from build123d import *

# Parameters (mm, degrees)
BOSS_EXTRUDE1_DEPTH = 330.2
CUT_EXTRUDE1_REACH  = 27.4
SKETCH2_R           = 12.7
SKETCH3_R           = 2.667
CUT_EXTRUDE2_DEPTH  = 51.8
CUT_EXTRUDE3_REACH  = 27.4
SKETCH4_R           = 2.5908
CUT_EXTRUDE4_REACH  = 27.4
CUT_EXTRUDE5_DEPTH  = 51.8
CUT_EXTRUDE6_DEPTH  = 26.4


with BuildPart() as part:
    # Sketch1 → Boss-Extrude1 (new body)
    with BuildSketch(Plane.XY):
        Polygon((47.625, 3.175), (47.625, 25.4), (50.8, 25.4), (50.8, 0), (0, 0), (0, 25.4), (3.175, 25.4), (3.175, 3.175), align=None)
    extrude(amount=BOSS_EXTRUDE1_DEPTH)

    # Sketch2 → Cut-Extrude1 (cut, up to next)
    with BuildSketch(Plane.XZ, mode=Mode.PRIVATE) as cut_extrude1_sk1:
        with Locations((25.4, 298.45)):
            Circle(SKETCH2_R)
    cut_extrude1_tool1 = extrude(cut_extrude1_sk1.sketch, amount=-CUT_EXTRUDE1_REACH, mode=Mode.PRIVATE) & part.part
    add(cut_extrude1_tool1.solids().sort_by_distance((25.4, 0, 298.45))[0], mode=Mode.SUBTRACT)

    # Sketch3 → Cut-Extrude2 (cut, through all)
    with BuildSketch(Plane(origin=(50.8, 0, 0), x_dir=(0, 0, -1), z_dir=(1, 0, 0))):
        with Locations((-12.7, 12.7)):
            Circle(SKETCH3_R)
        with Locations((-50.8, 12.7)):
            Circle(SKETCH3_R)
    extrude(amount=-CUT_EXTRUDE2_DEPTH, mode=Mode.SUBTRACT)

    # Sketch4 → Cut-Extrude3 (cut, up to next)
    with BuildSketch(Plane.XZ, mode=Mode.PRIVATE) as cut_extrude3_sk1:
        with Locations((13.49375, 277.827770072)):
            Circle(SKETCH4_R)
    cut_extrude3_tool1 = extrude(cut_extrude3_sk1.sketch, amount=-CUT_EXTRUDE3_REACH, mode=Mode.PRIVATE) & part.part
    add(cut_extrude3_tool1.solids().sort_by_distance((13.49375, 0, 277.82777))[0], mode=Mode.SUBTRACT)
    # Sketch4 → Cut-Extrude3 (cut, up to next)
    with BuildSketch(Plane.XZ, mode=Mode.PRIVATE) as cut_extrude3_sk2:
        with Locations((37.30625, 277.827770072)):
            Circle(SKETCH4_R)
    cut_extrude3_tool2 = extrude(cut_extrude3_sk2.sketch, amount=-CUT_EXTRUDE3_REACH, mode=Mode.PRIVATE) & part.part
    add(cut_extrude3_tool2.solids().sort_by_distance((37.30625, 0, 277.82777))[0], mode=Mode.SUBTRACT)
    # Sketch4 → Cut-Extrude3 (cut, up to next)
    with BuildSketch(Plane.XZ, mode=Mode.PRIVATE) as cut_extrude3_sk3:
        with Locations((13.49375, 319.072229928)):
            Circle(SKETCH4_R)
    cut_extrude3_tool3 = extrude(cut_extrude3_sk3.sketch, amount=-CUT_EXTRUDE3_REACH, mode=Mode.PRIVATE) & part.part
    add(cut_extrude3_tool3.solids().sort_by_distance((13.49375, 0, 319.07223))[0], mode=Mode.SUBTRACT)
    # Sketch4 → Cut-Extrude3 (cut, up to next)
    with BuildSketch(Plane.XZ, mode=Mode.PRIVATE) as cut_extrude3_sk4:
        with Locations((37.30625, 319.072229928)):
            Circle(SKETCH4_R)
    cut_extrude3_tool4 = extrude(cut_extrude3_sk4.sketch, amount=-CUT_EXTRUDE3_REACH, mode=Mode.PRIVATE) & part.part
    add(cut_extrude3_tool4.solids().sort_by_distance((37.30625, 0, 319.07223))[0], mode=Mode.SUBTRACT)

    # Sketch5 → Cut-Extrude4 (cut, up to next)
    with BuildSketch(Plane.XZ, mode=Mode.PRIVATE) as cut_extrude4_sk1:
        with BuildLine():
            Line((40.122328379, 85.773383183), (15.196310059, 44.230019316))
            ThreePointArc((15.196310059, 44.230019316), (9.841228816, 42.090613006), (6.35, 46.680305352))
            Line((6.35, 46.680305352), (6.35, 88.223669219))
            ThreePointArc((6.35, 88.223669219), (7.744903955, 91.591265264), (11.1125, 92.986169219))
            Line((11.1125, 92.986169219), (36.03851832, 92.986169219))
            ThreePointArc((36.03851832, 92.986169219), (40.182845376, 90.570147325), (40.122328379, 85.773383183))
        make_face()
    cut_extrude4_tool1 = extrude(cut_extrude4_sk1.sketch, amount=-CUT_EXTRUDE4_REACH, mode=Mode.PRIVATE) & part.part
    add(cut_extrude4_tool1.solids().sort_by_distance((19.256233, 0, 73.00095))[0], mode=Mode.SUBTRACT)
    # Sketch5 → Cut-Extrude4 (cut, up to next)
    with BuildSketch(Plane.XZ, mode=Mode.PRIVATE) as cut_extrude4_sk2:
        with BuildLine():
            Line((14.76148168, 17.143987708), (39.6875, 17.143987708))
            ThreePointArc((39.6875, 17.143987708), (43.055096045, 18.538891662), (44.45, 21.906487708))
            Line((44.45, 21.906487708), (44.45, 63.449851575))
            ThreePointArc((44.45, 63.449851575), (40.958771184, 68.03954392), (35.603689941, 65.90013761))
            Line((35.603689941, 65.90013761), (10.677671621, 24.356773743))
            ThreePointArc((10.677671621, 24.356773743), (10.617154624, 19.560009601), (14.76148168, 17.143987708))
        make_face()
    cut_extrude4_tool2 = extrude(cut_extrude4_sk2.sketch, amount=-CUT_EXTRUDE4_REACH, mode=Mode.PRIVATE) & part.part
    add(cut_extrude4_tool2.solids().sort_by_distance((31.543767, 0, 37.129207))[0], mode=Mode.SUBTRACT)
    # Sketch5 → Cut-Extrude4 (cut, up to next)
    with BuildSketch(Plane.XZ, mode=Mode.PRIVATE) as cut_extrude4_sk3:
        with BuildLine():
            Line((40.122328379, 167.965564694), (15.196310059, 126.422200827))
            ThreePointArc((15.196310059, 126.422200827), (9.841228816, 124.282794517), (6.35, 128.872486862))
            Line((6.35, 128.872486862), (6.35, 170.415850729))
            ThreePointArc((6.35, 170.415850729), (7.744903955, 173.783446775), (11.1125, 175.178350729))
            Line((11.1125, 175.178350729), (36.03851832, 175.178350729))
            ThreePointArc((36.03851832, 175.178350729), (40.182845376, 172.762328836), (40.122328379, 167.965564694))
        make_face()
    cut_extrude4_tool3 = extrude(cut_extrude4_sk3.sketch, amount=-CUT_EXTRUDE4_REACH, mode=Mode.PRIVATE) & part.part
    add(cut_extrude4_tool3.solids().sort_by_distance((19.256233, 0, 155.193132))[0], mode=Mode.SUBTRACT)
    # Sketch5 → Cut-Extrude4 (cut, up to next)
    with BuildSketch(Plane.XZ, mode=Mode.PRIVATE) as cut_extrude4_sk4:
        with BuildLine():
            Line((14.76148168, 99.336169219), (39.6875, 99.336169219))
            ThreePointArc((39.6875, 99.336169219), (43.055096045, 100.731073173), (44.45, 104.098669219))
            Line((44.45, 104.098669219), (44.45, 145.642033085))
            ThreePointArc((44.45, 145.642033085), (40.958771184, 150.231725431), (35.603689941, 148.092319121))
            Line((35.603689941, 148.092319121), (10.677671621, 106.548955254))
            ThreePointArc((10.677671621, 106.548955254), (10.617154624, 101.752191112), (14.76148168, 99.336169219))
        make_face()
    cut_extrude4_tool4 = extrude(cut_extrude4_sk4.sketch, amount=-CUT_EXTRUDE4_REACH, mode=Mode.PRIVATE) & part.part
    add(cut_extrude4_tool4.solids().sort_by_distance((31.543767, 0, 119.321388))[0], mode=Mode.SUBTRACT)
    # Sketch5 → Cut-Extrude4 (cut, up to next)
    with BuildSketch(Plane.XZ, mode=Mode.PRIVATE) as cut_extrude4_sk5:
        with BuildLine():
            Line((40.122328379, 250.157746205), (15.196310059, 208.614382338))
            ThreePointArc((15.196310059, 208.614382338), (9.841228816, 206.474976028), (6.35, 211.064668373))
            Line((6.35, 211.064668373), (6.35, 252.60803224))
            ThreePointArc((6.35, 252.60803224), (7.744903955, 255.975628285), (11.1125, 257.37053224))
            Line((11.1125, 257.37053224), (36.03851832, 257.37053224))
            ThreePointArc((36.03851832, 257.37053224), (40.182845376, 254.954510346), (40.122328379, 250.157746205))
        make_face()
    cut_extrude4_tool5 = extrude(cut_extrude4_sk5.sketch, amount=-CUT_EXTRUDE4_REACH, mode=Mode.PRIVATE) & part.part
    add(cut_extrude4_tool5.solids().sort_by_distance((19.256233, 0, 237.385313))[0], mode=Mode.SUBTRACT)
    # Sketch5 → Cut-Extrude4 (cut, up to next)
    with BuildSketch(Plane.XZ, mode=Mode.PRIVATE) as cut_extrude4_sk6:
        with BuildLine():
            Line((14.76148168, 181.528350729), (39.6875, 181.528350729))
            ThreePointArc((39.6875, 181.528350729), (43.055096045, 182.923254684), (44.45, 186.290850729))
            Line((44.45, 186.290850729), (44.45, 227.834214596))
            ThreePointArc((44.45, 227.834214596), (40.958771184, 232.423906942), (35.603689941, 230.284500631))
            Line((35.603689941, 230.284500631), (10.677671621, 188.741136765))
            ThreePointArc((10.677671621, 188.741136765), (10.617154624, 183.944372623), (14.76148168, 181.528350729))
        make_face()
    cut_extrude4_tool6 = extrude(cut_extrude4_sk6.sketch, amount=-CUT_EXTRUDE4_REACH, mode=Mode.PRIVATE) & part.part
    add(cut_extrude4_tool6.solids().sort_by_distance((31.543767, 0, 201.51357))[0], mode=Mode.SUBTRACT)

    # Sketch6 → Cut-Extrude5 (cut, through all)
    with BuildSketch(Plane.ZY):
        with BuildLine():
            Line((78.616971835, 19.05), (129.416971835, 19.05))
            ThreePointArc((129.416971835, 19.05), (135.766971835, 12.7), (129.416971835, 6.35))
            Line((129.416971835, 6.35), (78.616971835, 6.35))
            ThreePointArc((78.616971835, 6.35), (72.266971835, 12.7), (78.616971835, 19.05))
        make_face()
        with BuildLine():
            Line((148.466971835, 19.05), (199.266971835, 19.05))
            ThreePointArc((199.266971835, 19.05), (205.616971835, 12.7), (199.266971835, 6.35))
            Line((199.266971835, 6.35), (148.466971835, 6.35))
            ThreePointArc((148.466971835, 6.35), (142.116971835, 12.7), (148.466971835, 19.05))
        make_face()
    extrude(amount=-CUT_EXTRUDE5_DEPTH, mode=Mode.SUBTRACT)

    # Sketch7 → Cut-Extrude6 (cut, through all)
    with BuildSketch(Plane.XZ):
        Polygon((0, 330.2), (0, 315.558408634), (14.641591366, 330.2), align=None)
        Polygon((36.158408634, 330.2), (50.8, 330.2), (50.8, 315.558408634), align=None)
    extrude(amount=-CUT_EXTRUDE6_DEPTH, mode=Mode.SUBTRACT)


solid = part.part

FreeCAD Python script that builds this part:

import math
import FreeCAD as App
import Part
import Sketcher
from FreeCAD import Vector
Q = App.Units.Quantity


def add_polygon(sketch, points):
    """Adds a closed chain of lines whose ends are joined by coincident constraints."""
    first, n = sketch.GeometryCount, len(points)
    for a, b in zip(points, points[1:] + points[:1]):
        sketch.addGeometry(Part.LineSegment(App.Vector(*a, 0), App.Vector(*b, 0)), False)
    for i in range(n):
        sketch.addConstraint(Sketcher.Constraint("Coincident", first + i, 2, first + (i + 1) % n, 1))

doc = App.newDocument("Part")
body = doc.addObject("PartDesign::Body", "Body")

# Sketch on XY plane
sketch1 = body.newObject("Sketcher::SketchObject", "Sketch")
sketch1.AttachmentSupport = (doc.getObject("XY_Plane"), [""])
sketch1.MapMode = "FlatFace"
add_polygon(sketch1, [(47.6, 25.4), (47.6, 3.2), (3.2, 3.2), (3.2, 25.4), (0, 25.4), (0, 0), (50.8, 0), (50.8, 25.4)])  # lines 0-7
sketch1.addConstraint(Sketcher.Constraint("Vertical", 0))
sketch1.addConstraint(Sketcher.Constraint("Horizontal", 1))
sketch1.addConstraint(Sketcher.Constraint("Vertical", 2))
sketch1.addConstraint(Sketcher.Constraint("Horizontal", 3))
sketch1.addConstraint(Sketcher.Constraint("Vertical", 4))
sketch1.addConstraint(Sketcher.Constraint("Horizontal", 5))
sketch1.addConstraint(Sketcher.Constraint("Vertical", 6))
sketch1.addConstraint(Sketcher.Constraint("Horizontal", 7))
sketch1.addConstraint(Sketcher.Constraint("Coincident", 4, 2, -1, 1))
sketch1.addConstraint(Sketcher.Constraint("Horizontal", 3, 2, 6, 2))
sketch1.addConstraint(Sketcher.Constraint("Equal", 3, 7))
sketch1.addConstraint(Sketcher.Constraint("DistanceX", 5, 1, 5, 2, Q("2 in")))
sketch1.addConstraint(Sketcher.Constraint("DistanceY", 4, 2, 4, 1, Q("1 in")))
sketch1.addConstraint(Sketcher.Constraint("DistanceX", 1, 2, 1, 1, Q("1.75 in")))
sketch1.addConstraint(Sketcher.Constraint("DistanceY", 0, 2, 0, 1, Q("0.875 in")))
pad1 = body.newObject("PartDesign::Pad", "Pad")
pad1.Profile = sketch1
pad1.Length = Q("13 in")

# Sketch on XZ plane
sketch2 = body.newObject("Sketcher::SketchObject", "Sketch001")
sketch2.AttachmentSupport = (doc.getObject("XZ_Plane"), [""])
sketch2.MapMode = "FlatFace"
sketch2.addGeometry(Part.Circle(Vector(25, 298, 0), Vector(0, 0, 1), 13), False)
sketch2.addConstraint(Sketcher.Constraint("Diameter", 0, Q("1 in")))
sketch2.addConstraint(Sketcher.Constraint("DistanceX", -1, 1, 0, 3, Q("1 in")))
sketch2.addConstraint(Sketcher.Constraint("DistanceY", -1, 1, 0, 3, Q("11.75 in")))
pocket1 = body.newObject("PartDesign::Pocket", "Pocket")
pocket1.Profile = sketch2
pocket1.Type = "UpToFirst"

# Sketch on YZ plane
sketch3 = body.newObject("Sketcher::SketchObject", "Sketch002")
sketch3.AttachmentSupport = (doc.getObject("YZ_Plane"), [""])
sketch3.MapMode = "FlatFace"
sketch3.AttachmentOffset = App.Placement(Vector(0, 0, 2 * 25.4), App.Rotation())
sketch3.addGeometry(Part.Circle(Vector(12.7, 12.7, 0), Vector(0, 0, 1), 2.7), False)
sketch3.addGeometry(Part.Circle(Vector(12.7, 50.8, 0), Vector(0, 0, 1), 2.7), False)
sketch3.addConstraint(Sketcher.Constraint("Equal", 0, 1))
sketch3.addConstraint(Sketcher.Constraint("Vertical", 0, 3, 1, 3))
sketch3.addConstraint(Sketcher.Constraint("Diameter", 0, Q("0.21 in")))
sketch3.addConstraint(Sketcher.Constraint("DistanceY", -1, 1, 1, 3, Q("2 in")))
sketch3.addConstraint(Sketcher.Constraint("DistanceX", -1, 1, 0, 3, Q("0.5 in")))
sketch3.addConstraint(Sketcher.Constraint("DistanceY", -1, 1, 0, 3, Q("0.5 in")))
pocket2 = body.newObject("PartDesign::Pocket", "Pocket001")
pocket2.Profile = sketch3
pocket2.Type = "ThroughAll"

# Sketch on XZ plane
sketch4 = body.newObject("Sketcher::SketchObject", "Sketch003")
sketch4.AttachmentSupport = (doc.getObject("XZ_Plane"), [""])
sketch4.MapMode = "FlatFace"
sketch4.addGeometry(Part.Circle(Vector(13.5, 277.8, 0), Vector(0, 0, 1), 2.6), False)
sketch4.addConstraint(Sketcher.Constraint("Diameter", 0, Q("0.204 in")))
sketch4.addConstraint(Sketcher.Constraint("DistanceX", -1, 1, 0, 3, Q("0.53125 in")))
sketch4.addConstraint(Sketcher.Constraint("DistanceY", -1, 1, 0, 3, Q("277.82777 mm")))
pocket3 = body.newObject("PartDesign::Pocket", "Pocket002")
pocket3.Profile = sketch4
pocket3.Type = "UpToFirst"

# Sketch on XZ plane
sketch5 = body.newObject("Sketcher::SketchObject", "Sketch004")
sketch5.AttachmentSupport = (doc.getObject("XZ_Plane"), [""])
sketch5.MapMode = "FlatFace"
sketch5.addGeometry(Part.Circle(Vector(37.3, 277.8, 0), Vector(0, 0, 1), 2.6), False)
sketch5.addConstraint(Sketcher.Constraint("Diameter", 0, Q("0.204 in")))
sketch5.addConstraint(Sketcher.Constraint("DistanceX", -1, 1, 0, 3, Q("1.46875 in")))
sketch5.addConstraint(Sketcher.Constraint("DistanceY", -1, 1, 0, 3, Q("277.82777 mm")))
pocket4 = body.newObject("PartDesign::Pocket", "Pocket003")
pocket4.Profile = sketch5
pocket4.Type = "UpToFirst"

# Sketch on XZ plane
sketch6 = body.newObject("Sketcher::SketchObject", "Sketch005")
sketch6.AttachmentSupport = (doc.getObject("XZ_Plane"), [""])
sketch6.MapMode = "FlatFace"
sketch6.addGeometry(Part.Circle(Vector(13.5, 319.1, 0), Vector(0, 0, 1), 2.6), False)
sketch6.addConstraint(Sketcher.Constraint("Diameter", 0, Q("0.204 in")))
sketch6.addConstraint(Sketcher.Constraint("DistanceX", -1, 1, 0, 3, Q("0.53125 in")))
sketch6.addConstraint(Sketcher.Constraint("DistanceY", -1, 1, 0, 3, Q("319.07223 mm")))
pocket5 = body.newObject("PartDesign::Pocket", "Pocket004")
pocket5.Profile = sketch6
pocket5.Type = "UpToFirst"

# Sketch on XZ plane
sketch7 = body.newObject("Sketcher::SketchObject", "Sketch006")
sketch7.AttachmentSupport = (doc.getObject("XZ_Plane"), [""])
sketch7.MapMode = "FlatFace"
sketch7.addGeometry(Part.Circle(Vector(37.3, 319.1, 0), Vector(0, 0, 1), 2.6), False)
sketch7.addConstraint(Sketcher.Constraint("Diameter", 0, Q("0.204 in")))
sketch7.addConstraint(Sketcher.Constraint("DistanceX", -1, 1, 0, 3, Q("1.46875 in")))
sketch7.addConstraint(Sketcher.Constraint("DistanceY", -1, 1, 0, 3, Q("319.07223 mm")))
pocket6 = body.newObject("PartDesign::Pocket", "Pocket005")
pocket6.Profile = sketch7
pocket6.Type = "UpToFirst"

# Sketch on XZ plane
sketch8 = body.newObject("Sketcher::SketchObject", "Sketch007")
sketch8.AttachmentSupport = (doc.getObject("XZ_Plane"), [""])
sketch8.MapMode = "FlatFace"
sketch8.addGeometry(Part.LineSegment(Vector(15.2, 44.2, 0), Vector(40.1, 85.8, 0)), False)
sketch8.addGeometry(Part.ArcOfCircle(Part.Circle(Vector(36, 88.2, 0), Vector(0, 0, 1), 4.8), math.radians(-31), math.radians(90)), False)
sketch8.addGeometry(Part.LineSegment(Vector(36, 93, 0), Vector(11.1, 93, 0)), False)
sketch8.addGeometry(Part.ArcOfCircle(Part.Circle(Vector(11.1, 88.2, 0), Vector(0, 0, 1), 4.8), math.radians(90), math.radians(180)), False)
sketch8.addGeometry(Part.LineSegment(Vector(6.3, 88.2, 0), Vector(6.3, 46.7, 0)), False)
sketch8.addGeometry(Part.ArcOfCircle(Part.Circle(Vector(11.1, 46.7, 0), Vector(0, 0, 1), 4.8), math.radians(180), math.radians(329)), False)
sketch8.addConstraint(Sketcher.Constraint("Tangent", 0, 2, 1, 1))
sketch8.addConstraint(Sketcher.Constraint("Tangent", 1, 2, 2, 1))
sketch8.addConstraint(Sketcher.Constraint("Tangent", 2, 2, 3, 1))
sketch8.addConstraint(Sketcher.Constraint("Tangent", 3, 2, 4, 1))
sketch8.addConstraint(Sketcher.Constraint("Tangent", 4, 2, 5, 1))
sketch8.addConstraint(Sketcher.Constraint("Tangent", 5, 2, 0, 1))
sketch8.addConstraint(Sketcher.Constraint("Horizontal", 2))
sketch8.addConstraint(Sketcher.Constraint("Vertical", 4))
sketch8.addConstraint(Sketcher.Constraint("Equal", 1, 3))
sketch8.addConstraint(Sketcher.Constraint("Equal", 3, 5))
sketch8.addConstraint(Sketcher.Constraint("Radius", 1, Q("0.1875 in")))
sketch8.addConstraint(Sketcher.Constraint("DistanceX", -1, 1, 3, 2, Q("0.25 in")))
sketch8.addConstraint(Sketcher.Constraint("DistanceX", 2, 2, 2, 1, Q("24.926018 mm")))
sketch8.addConstraint(Sketcher.Constraint("Distance", 0, Q("48.447471 mm")))
sketch8.addConstraint(Sketcher.Constraint("DistanceY", -1, 1, 1, 3, Q("88.223669 mm")))
pocket7 = body.newObject("PartDesign::Pocket", "Pocket006")
pocket7.Profile = sketch8
pocket7.Type = "UpToFirst"

# Sketch on XZ plane
sketch9 = body.newObject("Sketcher::SketchObject", "Sketch008")
sketch9.AttachmentSupport = (doc.getObject("XZ_Plane"), [""])
sketch9.MapMode = "FlatFace"
sketch9.addGeometry(Part.LineSegment(Vector(14.8, 17.1, 0), Vector(39.7, 17.1, 0)), False)
sketch9.addGeometry(Part.ArcOfCircle(Part.Circle(Vector(39.7, 21.9, 0), Vector(0, 0, 1), 4.8), math.radians(-90), math.radians(0)), False)
sketch9.addGeometry(Part.LineSegment(Vector(44.5, 21.9, 0), Vector(44.5, 63.4, 0)), False)
sketch9.addGeometry(Part.ArcOfCircle(Part.Circle(Vector(39.7, 63.4, 0), Vector(0, 0, 1), 4.8), math.radians(0), math.radians(149)), False)
sketch9.addGeometry(Part.LineSegment(Vector(35.6, 65.9, 0), Vector(10.7, 24.4, 0)), False)
sketch9.addGeometry(Part.ArcOfCircle(Part.Circle(Vector(14.8, 21.9, 0), Vector(0, 0, 1), 4.8), math.radians(149), math.radians(270)), False)
sketch9.addConstraint(Sketcher.Constraint("Tangent", 0, 2, 1, 1))
sketch9.addConstraint(Sketcher.Constraint("Tangent", 1, 2, 2, 1))
sketch9.addConstraint(Sketcher.Constraint("Tangent", 2, 2, 3, 1))
sketch9.addConstraint(Sketcher.Constraint("Tangent", 3, 2, 4, 1))
sketch9.addConstraint(Sketcher.Constraint("Tangent", 4, 2, 5, 1))
sketch9.addConstraint(Sketcher.Constraint("Tangent", 5, 2, 0, 1))
sketch9.addConstraint(Sketcher.Constraint("Horizontal", 0))
sketch9.addConstraint(Sketcher.Constraint("Vertical", 2))
sketch9.addConstraint(Sketcher.Constraint("Equal", 1, 3))
sketch9.addConstraint(Sketcher.Constraint("Equal", 3, 5))
sketch9.addConstraint(Sketcher.Constraint("Radius", 1, Q("0.1875 in")))
sketch9.addConstraint(Sketcher.Constraint("DistanceX", -1, 1, 1, 2, Q("1.75 in")))
sketch9.addConstraint(Sketcher.Constraint("DistanceX", 0, 1, 0, 2, Q("24.926018 mm")))
sketch9.addConstraint(Sketcher.Constraint("Distance", 4, Q("48.447471 mm")))
sketch9.addConstraint(Sketcher.Constraint("DistanceY", -1, 1, 3, 3, Q("63.449852 mm")))
pocket8 = body.newObject("PartDesign::Pocket", "Pocket007")
pocket8.Profile = sketch9
pocket8.Type = "UpToFirst"

# Sketch on XZ plane
sketch10 = body.newObject("Sketcher::SketchObject", "Sketch009")
sketch10.AttachmentSupport = (doc.getObject("XZ_Plane"), [""])
sketch10.MapMode = "FlatFace"
sketch10.addGeometry(Part.LineSegment(Vector(15.2, 126.4, 0), Vector(40.1, 168, 0)), False)
sketch10.addGeometry(Part.ArcOfCircle(Part.Circle(Vector(36, 170.4, 0), Vector(0, 0, 1), 4.8), math.radians(-31), math.radians(90)), False)
sketch10.addGeometry(Part.LineSegment(Vector(36, 175.2, 0), Vector(11.1, 175.2, 0)), False)
sketch10.addGeometry(Part.ArcOfCircle(Part.Circle(Vector(11.1, 170.4, 0), Vector(0, 0, 1), 4.8), math.radians(90), math.radians(180)), False)
sketch10.addGeometry(Part.LineSegment(Vector(6.3, 170.4, 0), Vector(6.3, 128.9, 0)), False)
sketch10.addGeometry(Part.ArcOfCircle(Part.Circle(Vector(11.1, 128.9, 0), Vector(0, 0, 1), 4.8), math.radians(-180), math.radians(-31)), False)
sketch10.addConstraint(Sketcher.Constraint("Tangent", 0, 2, 1, 1))
sketch10.addConstraint(Sketcher.Constraint("Tangent", 1, 2, 2, 1))
sketch10.addConstraint(Sketcher.Constraint("Tangent", 2, 2, 3, 1))
sketch10.addConstraint(Sketcher.Constraint("Tangent", 3, 2, 4, 1))
sketch10.addConstraint(Sketcher.Constraint("Tangent", 4, 2, 5, 1))
sketch10.addConstraint(Sketcher.Constraint("Tangent", 5, 2, 0, 1))
sketch10.addConstraint(Sketcher.Constraint("Horizontal", 2))
sketch10.addConstraint(Sketcher.Constraint("Vertical", 4))
sketch10.addConstraint(Sketcher.Constraint("Equal", 1, 3))
sketch10.addConstraint(Sketcher.Constraint("Equal", 3, 5))
sketch10.addConstraint(Sketcher.Constraint("Radius", 1, Q("0.1875 in")))
sketch10.addConstraint(Sketcher.Constraint("DistanceX", -1, 1, 3, 2, Q("0.25 in")))
sketch10.addConstraint(Sketcher.Constraint("DistanceX", 2, 2, 2, 1, Q("24.926018 mm")))
sketch10.addConstraint(Sketcher.Constraint("DistanceY", -1, 1, 5, 2, Q("126.422201 mm")))
sketch10.addConstraint(Sketcher.Constraint("Distance", 0, Q("48.447471 mm")))
pocket9 = body.newObject("PartDesign::Pocket", "Pocket008")
pocket9.Profile = sketch10
pocket9.Type = "UpToFirst"

# Sketch on XZ plane
sketch11 = body.newObject("Sketcher::SketchObject", "Sketch010")
sketch11.AttachmentSupport = (doc.getObject("XZ_Plane"), [""])
sketch11.MapMode = "FlatFace"
sketch11.addGeometry(Part.LineSegment(Vector(14.8, 99.3, 0), Vector(39.7, 99.3, 0)), False)
sketch11.addGeometry(Part.ArcOfCircle(Part.Circle(Vector(39.7, 104.1, 0), Vector(0, 0, 1), 4.8), math.radians(-90), math.radians(0)), False)
sketch11.addGeometry(Part.LineSegment(Vector(44.5, 104.1, 0), Vector(44.5, 145.6, 0)), False)
sketch11.addGeometry(Part.ArcOfCircle(Part.Circle(Vector(39.7, 145.6, 0), Vector(0, 0, 1), 4.8), math.radians(0), math.radians(149)), False)
sketch11.addGeometry(Part.LineSegment(Vector(35.6, 148.1, 0), Vector(10.7, 106.5, 0)), False)
sketch11.addGeometry(Part.ArcOfCircle(Part.Circle(Vector(14.8, 104.1, 0), Vector(0, 0, 1), 4.8), math.radians(149), math.radians(270)), False)
sketch11.addConstraint(Sketcher.Constraint("Tangent", 0, 2, 1, 1))
sketch11.addConstraint(Sketcher.Constraint("Tangent", 1, 2, 2, 1))
sketch11.addConstraint(Sketcher.Constraint("Tangent", 2, 2, 3, 1))
sketch11.addConstraint(Sketcher.Constraint("Tangent", 3, 2, 4, 1))
sketch11.addConstraint(Sketcher.Constraint("Tangent", 4, 2, 5, 1))
sketch11.addConstraint(Sketcher.Constraint("Tangent", 5, 2, 0, 1))
sketch11.addConstraint(Sketcher.Constraint("Horizontal", 0))
sketch11.addConstraint(Sketcher.Constraint("Vertical", 2))
sketch11.addConstraint(Sketcher.Constraint("Equal", 1, 3))
sketch11.addConstraint(Sketcher.Constraint("Equal", 3, 5))
sketch11.addConstraint(Sketcher.Constraint("Radius", 1, Q("0.1875 in")))
sketch11.addConstraint(Sketcher.Constraint("DistanceX", -1, 1, 1, 2, Q("1.75 in")))
sketch11.addConstraint(Sketcher.Constraint("DistanceX", 0, 1, 0, 2, Q("24.926018 mm")))
sketch11.addConstraint(Sketcher.Constraint("Distance", 4, Q("48.447471 mm")))
sketch11.addConstraint(Sketcher.Constraint("DistanceY", -1, 1, 1, 3, Q("104.098669 mm")))
pocket10 = body.newObject("PartDesign::Pocket", "Pocket009")
pocket10.Profile = sketch11
pocket10.Type = "UpToFirst"

# Sketch on XZ plane
sketch12 = body.newObject("Sketcher::SketchObject", "Sketch011")
sketch12.AttachmentSupport = (doc.getObject("XZ_Plane"), [""])
sketch12.MapMode = "FlatFace"
sketch12.addGeometry(Part.LineSegment(Vector(15.2, 208.6, 0), Vector(40.1, 250.2, 0)), False)
sketch12.addGeometry(Part.ArcOfCircle(Part.Circle(Vector(36, 252.6, 0), Vector(0, 0, 1), 4.8), math.radians(-31), math.radians(90)), False)
sketch12.addGeometry(Part.LineSegment(Vector(36, 257.4, 0), Vector(11.1, 257.4, 0)), False)
sketch12.addGeometry(Part.ArcOfCircle(Part.Circle(Vector(11.1, 252.6, 0), Vector(0, 0, 1), 4.8), math.radians(90), math.radians(180)), False)
sketch12.addGeometry(Part.LineSegment(Vector(6.3, 252.6, 0), Vector(6.3, 211.1, 0)), False)
sketch12.addGeometry(Part.ArcOfCircle(Part.Circle(Vector(11.1, 211.1, 0), Vector(0, 0, 1), 4.8), math.radians(-180), math.radians(-31)), False)
sketch12.addConstraint(Sketcher.Constraint("Tangent", 0, 2, 1, 1))
sketch12.addConstraint(Sketcher.Constraint("Tangent", 1, 2, 2, 1))
sketch12.addConstraint(Sketcher.Constraint("Tangent", 2, 2, 3, 1))
sketch12.addConstraint(Sketcher.Constraint("Tangent", 3, 2, 4, 1))
sketch12.addConstraint(Sketcher.Constraint("Tangent", 4, 2, 5, 1))
sketch12.addConstraint(Sketcher.Constraint("Tangent", 5, 2, 0, 1))
sketch12.addConstraint(Sketcher.Constraint("Horizontal", 2))
sketch12.addConstraint(Sketcher.Constraint("Vertical", 4))
sketch12.addConstraint(Sketcher.Constraint("Equal", 1, 3))
sketch12.addConstraint(Sketcher.Constraint("Equal", 3, 5))
sketch12.addConstraint(Sketcher.Constraint("Radius", 1, Q("0.1875 in")))
sketch12.addConstraint(Sketcher.Constraint("DistanceX", -1, 1, 3, 2, Q("0.25 in")))
sketch12.addConstraint(Sketcher.Constraint("DistanceX", 2, 2, 2, 1, Q("24.926018 mm")))
sketch12.addConstraint(Sketcher.Constraint("Distance", 0, Q("48.447471 mm")))
sketch12.addConstraint(Sketcher.Constraint("DistanceY", -1, 1, 5, 3, Q("211.064668 mm")))
pocket11 = body.newObject("PartDesign::Pocket", "Pocket010")
pocket11.Profile = sketch12
pocket11.Type = "UpToFirst"

# Sketch on XZ plane
sketch13 = body.newObject("Sketcher::SketchObject", "Sketch012")
sketch13.AttachmentSupport = (doc.getObject("XZ_Plane"), [""])
sketch13.MapMode = "FlatFace"
sketch13.addGeometry(Part.LineSegment(Vector(14.8, 181.5, 0), Vector(39.7, 181.5, 0)), False)
sketch13.addGeometry(Part.ArcOfCircle(Part.Circle(Vector(39.7, 186.3, 0), Vector(0, 0, 1), 4.8), math.radians(-90), math.radians(0)), False)
sketch13.addGeometry(Part.LineSegment(Vector(44.5, 186.3, 0), Vector(44.5, 227.8, 0)), False)
sketch13.addGeometry(Part.ArcOfCircle(Part.Circle(Vector(39.7, 227.8, 0), Vector(0, 0, 1), 4.8), math.radians(0), math.radians(149)), False)
sketch13.addGeometry(Part.LineSegment(Vector(35.6, 230.3, 0), Vector(10.7, 188.7, 0)), False)
sketch13.addGeometry(Part.ArcOfCircle(Part.Circle(Vector(14.8, 186.3, 0), Vector(0, 0, 1), 4.8), math.radians(149), math.radians(270)), False)
sketch13.addConstraint(Sketcher.Constraint("Tangent", 0, 2, 1, 1))
sketch13.addConstraint(Sketcher.Constraint("Tangent", 1, 2, 2, 1))
sketch13.addConstraint(Sketcher.Constraint("Tangent", 2, 2, 3, 1))
sketch13.addConstraint(Sketcher.Constraint("Tangent", 3, 2, 4, 1))
sketch13.addConstraint(Sketcher.Constraint("Tangent", 4, 2, 5, 1))
sketch13.addConstraint(Sketcher.Constraint("Tangent", 5, 2, 0, 1))
sketch13.addConstraint(Sketcher.Constraint("Horizontal", 0))
sketch13.addConstraint(Sketcher.Constraint("Vertical", 2))
sketch13.addConstraint(Sketcher.Constraint("Equal", 1, 3))
sketch13.addConstraint(Sketcher.Constraint("Equal", 3, 5))
sketch13.addConstraint(Sketcher.Constraint("Radius", 1, Q("0.1875 in")))
sketch13.addConstraint(Sketcher.Constraint("DistanceX", -1, 1, 1, 2, Q("1.75 in")))
sketch13.addConstraint(Sketcher.Constraint("DistanceX", 0, 1, 0, 2, Q("24.926018 mm")))
sketch13.addConstraint(Sketcher.Constraint("DistanceY", -1, 1, 3, 2, Q("230.284501 mm")))
sketch13.addConstraint(Sketcher.Constraint("Distance", 4, Q("48.447471 mm")))
pocket12 = body.newObject("PartDesign::Pocket", "Pocket011")
pocket12.Profile = sketch13
pocket12.Type = "UpToFirst"

# Sketch on YZ plane
sketch14 = body.newObject("Sketcher::SketchObject", "Sketch013")
sketch14.AttachmentSupport = (doc.getObject("YZ_Plane"), [""])
sketch14.MapMode = "FlatFace"
sketch14.addGeometry(Part.LineSegment(Vector(19, 129, 0), Vector(19, 79, 0)), False)
sketch14.addGeometry(Part.ArcOfCircle(Part.Circle(Vector(13, 79, 0), Vector(0, 0, 1), 6), math.radians(180), math.radians(360)), False)
sketch14.addGeometry(Part.LineSegment(Vector(6, 79, 0), Vector(6, 129, 0)), False)
sketch14.addGeometry(Part.ArcOfCircle(Part.Circle(Vector(13, 129, 0), Vector(0, 0, 1), 6), math.radians(0), math.radians(180)), False)
sketch14.addGeometry(Part.LineSegment(Vector(19, 199, 0), Vector(19, 148, 0)), False)
sketch14.addGeometry(Part.ArcOfCircle(Part.Circle(Vector(13, 148, 0), Vector(0, 0, 1), 6), math.radians(180), math.radians(360)), False)
sketch14.addGeometry(Part.LineSegment(Vector(6, 148, 0), Vector(6, 199, 0)), False)
sketch14.addGeometry(Part.ArcOfCircle(Part.Circle(Vector(13, 199, 0), Vector(0, 0, 1), 6), math.radians(0), math.radians(180)), False)
sketch14.addConstraint(Sketcher.Constraint("Tangent", 0, 2, 1, 2))
sketch14.addConstraint(Sketcher.Constraint("Tangent", 1, 1, 2, 1))
sketch14.addConstraint(Sketcher.Constraint("Tangent", 2, 2, 3, 2))
sketch14.addConstraint(Sketcher.Constraint("Tangent", 3, 1, 0, 1))
sketch14.addConstraint(Sketcher.Constraint("Tangent", 4, 2, 5, 2))
sketch14.addConstraint(Sketcher.Constraint("Tangent", 5, 1, 6, 1))
sketch14.addConstraint(Sketcher.Constraint("Tangent", 6, 2, 7, 2))
sketch14.addConstraint(Sketcher.Constraint("Tangent", 7, 1, 4, 1))
sketch14.addConstraint(Sketcher.Constraint("Vertical", 0))
sketch14.addConstraint(Sketcher.Constraint("Vertical", 2))
sketch14.addConstraint(Sketcher.Constraint("Vertical", 4))
sketch14.addConstraint(Sketcher.Constraint("Vertical", 6))
sketch14.addConstraint(Sketcher.Constraint("Equal", 3, 5))
sketch14.addConstraint(Sketcher.Constraint("Vertical", 3, 3, 5, 3))
sketch14.addConstraint(Sketcher.Constraint("Equal", 2, 4))
sketch14.addConstraint(Sketcher.Constraint("DistanceY", 0, 2, 0, 1, Q("2 in")))
sketch14.addConstraint(Sketcher.Constraint("Radius", 1, Q("0.25 in")))
sketch14.addConstraint(Sketcher.Constraint("DistanceX", -1, 1, 1, 3, Q("0.5 in")))
sketch14.addConstraint(Sketcher.Constraint("DistanceY", 3, 3, 5, 3, Q("0.75 in")))
sketch14.addConstraint(Sketcher.Constraint("DistanceY", -1, 1, 1, 3, Q("78.616972 mm")))
pocket13 = body.newObject("PartDesign::Pocket", "Pocket012")
pocket13.Profile = sketch14
pocket13.Type = "ThroughAll"
pocket13.Reversed = True

# Sketch on XZ plane
sketch15 = body.newObject("Sketcher::SketchObject", "Sketch014")
sketch15.AttachmentSupport = (doc.getObject("XZ_Plane"), [""])
sketch15.MapMode = "FlatFace"
add_polygon(sketch15, [(0, 330), (0, 316), (15, 330)])  # lines 0-2
add_polygon(sketch15, [(51, 330), (36, 330), (51, 316)])  # lines 3-5
sketch15.addConstraint(Sketcher.Constraint("Vertical", 0))
sketch15.addConstraint(Sketcher.Constraint("Horizontal", 2))
sketch15.addConstraint(Sketcher.Constraint("Horizontal", 3))
sketch15.addConstraint(Sketcher.Constraint("Vertical", 5))
sketch15.addConstraint(Sketcher.Constraint("PointOnObject", 0, 2, -2))
sketch15.addConstraint(Sketcher.Constraint("Perpendicular", 1, 4))
sketch15.addConstraint(Sketcher.Constraint("Horizontal", 2, 2, 3, 2))
sketch15.addConstraint(Sketcher.Constraint("Horizontal", 0, 2, 4, 2))
sketch15.addConstraint(Sketcher.Constraint("Equal", 2, 3))
sketch15.addConstraint(Sketcher.Constraint("DistanceY", -1, 1, 1, 2, Q("13 in")))
sketch15.addConstraint(Sketcher.Constraint("DistanceX", -1, 1, 4, 2, Q("2 in")))
sketch15.addConstraint(Sketcher.Constraint("DistanceX", 2, 2, 2, 1, Q("14.641591 mm")))
pocket14 = body.newObject("PartDesign::Pocket", "Pocket013")
pocket14.Profile = sketch15
pocket14.Type = "ThroughAll"

doc.recompute()
